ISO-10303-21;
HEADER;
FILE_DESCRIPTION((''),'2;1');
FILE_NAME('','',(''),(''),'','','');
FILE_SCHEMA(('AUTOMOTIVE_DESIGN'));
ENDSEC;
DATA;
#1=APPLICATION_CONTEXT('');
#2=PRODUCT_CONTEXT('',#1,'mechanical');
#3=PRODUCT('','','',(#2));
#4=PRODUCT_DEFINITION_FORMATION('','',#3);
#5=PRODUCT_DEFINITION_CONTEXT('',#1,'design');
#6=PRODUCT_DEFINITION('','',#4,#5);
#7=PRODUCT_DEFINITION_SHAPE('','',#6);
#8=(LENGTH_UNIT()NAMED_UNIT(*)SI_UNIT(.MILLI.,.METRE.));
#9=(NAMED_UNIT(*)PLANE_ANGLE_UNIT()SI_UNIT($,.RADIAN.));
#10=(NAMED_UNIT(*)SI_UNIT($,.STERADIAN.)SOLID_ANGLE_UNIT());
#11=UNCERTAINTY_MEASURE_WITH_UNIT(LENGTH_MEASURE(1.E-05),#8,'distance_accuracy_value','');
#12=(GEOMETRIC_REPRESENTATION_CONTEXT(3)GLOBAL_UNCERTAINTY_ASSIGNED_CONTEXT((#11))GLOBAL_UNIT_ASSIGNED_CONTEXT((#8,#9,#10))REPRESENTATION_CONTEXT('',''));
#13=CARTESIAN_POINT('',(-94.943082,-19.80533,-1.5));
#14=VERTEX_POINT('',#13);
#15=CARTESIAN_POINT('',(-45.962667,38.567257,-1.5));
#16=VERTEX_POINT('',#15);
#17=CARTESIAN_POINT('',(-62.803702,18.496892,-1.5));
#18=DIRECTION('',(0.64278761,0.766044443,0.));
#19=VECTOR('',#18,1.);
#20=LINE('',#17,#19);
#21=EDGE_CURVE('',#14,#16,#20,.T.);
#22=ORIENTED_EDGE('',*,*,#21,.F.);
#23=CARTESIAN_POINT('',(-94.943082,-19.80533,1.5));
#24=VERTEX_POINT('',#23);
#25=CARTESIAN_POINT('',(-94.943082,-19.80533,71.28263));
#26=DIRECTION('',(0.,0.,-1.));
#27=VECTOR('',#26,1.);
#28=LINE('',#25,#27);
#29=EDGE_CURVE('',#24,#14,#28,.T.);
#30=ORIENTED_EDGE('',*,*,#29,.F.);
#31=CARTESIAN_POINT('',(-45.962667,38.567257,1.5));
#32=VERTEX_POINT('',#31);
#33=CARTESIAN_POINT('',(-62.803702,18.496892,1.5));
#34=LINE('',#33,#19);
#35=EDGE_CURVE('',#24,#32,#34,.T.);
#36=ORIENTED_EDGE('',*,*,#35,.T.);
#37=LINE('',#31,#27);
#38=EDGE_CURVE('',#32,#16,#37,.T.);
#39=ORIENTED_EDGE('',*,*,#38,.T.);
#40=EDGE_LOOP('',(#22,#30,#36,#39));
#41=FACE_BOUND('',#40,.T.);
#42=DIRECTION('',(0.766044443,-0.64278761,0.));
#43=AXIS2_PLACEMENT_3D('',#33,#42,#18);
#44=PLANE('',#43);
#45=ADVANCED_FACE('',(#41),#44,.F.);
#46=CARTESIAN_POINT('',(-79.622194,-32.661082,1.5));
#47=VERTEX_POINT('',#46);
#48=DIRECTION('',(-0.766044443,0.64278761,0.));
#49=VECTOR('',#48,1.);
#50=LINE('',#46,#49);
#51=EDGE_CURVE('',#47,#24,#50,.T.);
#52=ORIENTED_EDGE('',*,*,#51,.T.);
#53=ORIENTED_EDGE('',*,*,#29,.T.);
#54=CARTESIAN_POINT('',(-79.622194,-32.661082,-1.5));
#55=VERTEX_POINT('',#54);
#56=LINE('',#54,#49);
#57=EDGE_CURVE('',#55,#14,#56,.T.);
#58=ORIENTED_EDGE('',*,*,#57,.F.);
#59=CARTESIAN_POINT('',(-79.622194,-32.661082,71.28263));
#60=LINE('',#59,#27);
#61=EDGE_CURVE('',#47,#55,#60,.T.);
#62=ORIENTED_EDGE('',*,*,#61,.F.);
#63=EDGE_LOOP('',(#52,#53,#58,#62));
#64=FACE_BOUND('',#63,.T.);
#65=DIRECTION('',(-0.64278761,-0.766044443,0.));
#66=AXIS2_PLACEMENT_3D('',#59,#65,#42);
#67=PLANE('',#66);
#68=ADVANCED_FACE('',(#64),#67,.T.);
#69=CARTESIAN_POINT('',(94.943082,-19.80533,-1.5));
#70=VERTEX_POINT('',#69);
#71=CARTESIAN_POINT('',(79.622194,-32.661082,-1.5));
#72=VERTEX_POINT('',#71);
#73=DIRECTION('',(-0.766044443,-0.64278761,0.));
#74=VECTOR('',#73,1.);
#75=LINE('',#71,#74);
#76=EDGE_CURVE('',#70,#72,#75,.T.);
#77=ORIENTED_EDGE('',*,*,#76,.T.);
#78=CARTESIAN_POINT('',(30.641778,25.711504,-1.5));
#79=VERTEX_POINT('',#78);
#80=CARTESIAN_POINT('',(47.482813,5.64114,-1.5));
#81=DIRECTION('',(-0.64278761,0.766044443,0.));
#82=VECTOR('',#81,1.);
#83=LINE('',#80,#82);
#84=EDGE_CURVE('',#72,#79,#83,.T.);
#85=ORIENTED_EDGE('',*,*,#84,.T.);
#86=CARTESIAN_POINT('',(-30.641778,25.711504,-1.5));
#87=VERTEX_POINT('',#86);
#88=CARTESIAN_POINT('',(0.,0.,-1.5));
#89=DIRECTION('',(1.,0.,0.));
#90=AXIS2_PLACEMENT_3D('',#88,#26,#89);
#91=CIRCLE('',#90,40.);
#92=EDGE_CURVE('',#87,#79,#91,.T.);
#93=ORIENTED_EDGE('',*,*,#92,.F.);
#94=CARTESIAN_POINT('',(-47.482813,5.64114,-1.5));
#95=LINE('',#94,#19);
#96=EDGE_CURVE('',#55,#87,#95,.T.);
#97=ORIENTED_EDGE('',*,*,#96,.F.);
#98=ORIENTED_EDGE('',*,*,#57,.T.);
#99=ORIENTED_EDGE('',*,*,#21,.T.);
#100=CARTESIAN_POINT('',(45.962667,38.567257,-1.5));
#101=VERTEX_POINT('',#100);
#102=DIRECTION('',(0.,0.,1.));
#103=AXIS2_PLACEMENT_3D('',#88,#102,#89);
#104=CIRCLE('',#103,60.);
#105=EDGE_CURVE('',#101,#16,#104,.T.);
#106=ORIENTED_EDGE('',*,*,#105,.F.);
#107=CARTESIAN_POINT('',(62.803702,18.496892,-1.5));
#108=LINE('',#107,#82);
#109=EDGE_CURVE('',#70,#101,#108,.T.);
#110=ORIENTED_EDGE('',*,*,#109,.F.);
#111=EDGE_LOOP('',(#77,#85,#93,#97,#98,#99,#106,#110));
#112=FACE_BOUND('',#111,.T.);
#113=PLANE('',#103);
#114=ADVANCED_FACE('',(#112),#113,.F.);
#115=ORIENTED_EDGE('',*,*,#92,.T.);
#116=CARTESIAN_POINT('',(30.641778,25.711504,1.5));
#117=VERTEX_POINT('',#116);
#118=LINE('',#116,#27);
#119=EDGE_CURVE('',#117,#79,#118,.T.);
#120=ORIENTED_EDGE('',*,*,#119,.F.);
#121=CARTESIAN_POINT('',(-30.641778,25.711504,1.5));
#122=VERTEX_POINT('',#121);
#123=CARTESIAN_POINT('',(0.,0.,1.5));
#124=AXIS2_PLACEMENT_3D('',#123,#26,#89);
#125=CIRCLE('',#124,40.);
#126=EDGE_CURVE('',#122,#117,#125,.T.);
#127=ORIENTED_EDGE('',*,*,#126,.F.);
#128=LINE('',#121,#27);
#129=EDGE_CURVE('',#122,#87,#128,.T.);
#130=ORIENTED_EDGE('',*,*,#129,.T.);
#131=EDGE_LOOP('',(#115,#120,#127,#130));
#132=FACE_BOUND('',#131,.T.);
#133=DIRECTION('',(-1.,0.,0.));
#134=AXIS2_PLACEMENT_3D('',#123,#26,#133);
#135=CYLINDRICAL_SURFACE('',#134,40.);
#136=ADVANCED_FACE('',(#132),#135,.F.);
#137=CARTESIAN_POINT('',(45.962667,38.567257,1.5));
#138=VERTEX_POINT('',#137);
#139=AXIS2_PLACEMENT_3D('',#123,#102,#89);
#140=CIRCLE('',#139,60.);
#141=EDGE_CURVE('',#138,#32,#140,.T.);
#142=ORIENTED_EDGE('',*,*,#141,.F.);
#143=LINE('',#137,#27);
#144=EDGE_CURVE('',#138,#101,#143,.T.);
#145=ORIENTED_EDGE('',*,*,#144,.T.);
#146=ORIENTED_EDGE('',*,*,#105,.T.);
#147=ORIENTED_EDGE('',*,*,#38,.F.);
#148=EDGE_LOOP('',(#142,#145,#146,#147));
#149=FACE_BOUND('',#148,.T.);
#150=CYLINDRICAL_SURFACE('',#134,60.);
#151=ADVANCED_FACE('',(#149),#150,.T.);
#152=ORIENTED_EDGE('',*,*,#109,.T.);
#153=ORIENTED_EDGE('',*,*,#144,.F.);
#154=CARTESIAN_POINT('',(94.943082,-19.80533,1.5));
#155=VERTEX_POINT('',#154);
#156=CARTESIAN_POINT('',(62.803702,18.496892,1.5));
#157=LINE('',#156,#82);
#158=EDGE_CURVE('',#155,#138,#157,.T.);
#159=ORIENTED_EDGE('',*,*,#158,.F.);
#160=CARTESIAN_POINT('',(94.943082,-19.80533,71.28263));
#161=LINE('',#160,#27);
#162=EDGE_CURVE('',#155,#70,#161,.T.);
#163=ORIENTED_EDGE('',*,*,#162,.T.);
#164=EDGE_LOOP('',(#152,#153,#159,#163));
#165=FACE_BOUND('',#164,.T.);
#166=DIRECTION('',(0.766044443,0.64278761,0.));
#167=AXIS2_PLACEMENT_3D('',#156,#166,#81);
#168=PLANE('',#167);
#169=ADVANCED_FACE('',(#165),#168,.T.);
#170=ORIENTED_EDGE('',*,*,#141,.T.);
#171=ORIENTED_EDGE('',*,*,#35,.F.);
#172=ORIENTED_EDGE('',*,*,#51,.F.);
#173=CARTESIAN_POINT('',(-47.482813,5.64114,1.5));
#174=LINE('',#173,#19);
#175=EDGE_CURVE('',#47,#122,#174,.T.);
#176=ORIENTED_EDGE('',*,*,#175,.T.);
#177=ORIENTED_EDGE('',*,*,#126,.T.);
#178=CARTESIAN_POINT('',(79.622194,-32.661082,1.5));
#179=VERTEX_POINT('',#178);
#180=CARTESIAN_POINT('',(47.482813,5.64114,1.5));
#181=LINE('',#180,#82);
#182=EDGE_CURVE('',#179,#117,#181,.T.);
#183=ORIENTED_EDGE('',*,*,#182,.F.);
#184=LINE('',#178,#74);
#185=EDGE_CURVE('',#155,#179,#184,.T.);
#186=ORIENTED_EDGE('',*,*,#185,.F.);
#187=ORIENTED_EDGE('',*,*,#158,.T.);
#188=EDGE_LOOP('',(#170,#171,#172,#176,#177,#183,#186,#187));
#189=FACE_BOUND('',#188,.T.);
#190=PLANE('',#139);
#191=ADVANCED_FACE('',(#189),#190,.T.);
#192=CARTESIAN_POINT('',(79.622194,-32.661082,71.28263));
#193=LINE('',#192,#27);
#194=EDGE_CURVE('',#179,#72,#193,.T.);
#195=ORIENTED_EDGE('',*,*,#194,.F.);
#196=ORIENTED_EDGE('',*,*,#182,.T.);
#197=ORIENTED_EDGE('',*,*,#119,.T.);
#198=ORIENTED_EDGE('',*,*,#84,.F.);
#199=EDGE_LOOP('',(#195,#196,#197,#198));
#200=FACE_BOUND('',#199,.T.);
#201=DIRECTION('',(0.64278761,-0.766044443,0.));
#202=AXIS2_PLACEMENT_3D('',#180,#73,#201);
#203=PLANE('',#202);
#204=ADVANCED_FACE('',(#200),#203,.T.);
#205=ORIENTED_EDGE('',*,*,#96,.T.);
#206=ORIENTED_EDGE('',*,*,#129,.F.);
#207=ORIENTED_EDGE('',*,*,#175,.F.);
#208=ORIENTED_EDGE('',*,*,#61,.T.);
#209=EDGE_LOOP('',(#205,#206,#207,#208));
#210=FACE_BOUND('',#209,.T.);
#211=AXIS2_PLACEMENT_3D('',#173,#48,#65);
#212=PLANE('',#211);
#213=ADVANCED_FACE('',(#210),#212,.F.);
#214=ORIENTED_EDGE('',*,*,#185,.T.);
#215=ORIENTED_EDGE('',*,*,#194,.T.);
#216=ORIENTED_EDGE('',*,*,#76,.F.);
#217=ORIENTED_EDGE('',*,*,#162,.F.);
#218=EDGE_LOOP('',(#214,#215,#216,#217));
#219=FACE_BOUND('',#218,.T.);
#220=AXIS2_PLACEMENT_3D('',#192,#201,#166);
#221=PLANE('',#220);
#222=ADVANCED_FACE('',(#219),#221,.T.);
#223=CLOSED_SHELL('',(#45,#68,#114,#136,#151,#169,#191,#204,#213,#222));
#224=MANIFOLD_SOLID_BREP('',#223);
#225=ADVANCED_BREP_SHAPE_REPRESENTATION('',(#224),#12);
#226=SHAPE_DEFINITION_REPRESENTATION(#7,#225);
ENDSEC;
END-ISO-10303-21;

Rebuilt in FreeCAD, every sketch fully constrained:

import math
import FreeCAD as App
import Part
import Sketcher
from FreeCAD import Vector
Q = App.Units.Quantity

doc = App.newDocument("Part")
body = doc.addObject("PartDesign::Body", "Body")

# Sketch on XY plane
sketch1 = doc.addObject("Sketcher::SketchObject", "Sketch")
body.addObject(sketch1)
sketch1.AttachmentSupport = (doc.XY_Plane, [""])
sketch1.MapMode = "FlatFace"
sketch1.addGeometry([
    Part.LineSegment(Vector(30.641778, 25.711504, 0), Vector(45.962667, 38.567257, 0)),
    Part.ArcOfCircle(Part.Circle(Vector(0, 0, 0), Vector(0, 0, 1), 60), math.radians(40), math.radians(140)),
    Part.LineSegment(Vector(-45.962667, 38.567257, 0), Vector(-30.641778, 25.711504, 0)),
    Part.ArcOfCircle(Part.Circle(Vector(0, 0, 0), Vector(0, 0, 1), 40), math.radians(40), math.radians(140)),
], False)
sketch1.addConstraint([
    Sketcher.Constraint("Coincident", 0, 2, 1, 1),
    Sketcher.Constraint("Coincident", 1, 2, 2, 1),
    Sketcher.Constraint("Coincident", 2, 2, 3, 2),
    Sketcher.Constraint("Coincident", 3, 1, 0, 1),
    Sketcher.Constraint("Coincident", 1, 3, -1, 1),
    Sketcher.Constraint("Coincident", 3, 3, -1, 1),
    Sketcher.Constraint("Horizontal", 0, 2, 1, 2),
    Sketcher.Constraint("Horizontal", 2, 2, 3, 1),
    Sketcher.Constraint("Radius", 1, 60.0),
    Sketcher.Constraint("Radius", 3, 40.0),
    Sketcher.Constraint("Angle", 0, Q("40 deg")),
    Sketcher.Constraint("DistanceX", -1, 1, 0, 2, 45.962667),
])
pad1 = doc.addObject("PartDesign::Pad", "Pad")
body.addObject(pad1)
pad1.Profile = sketch1
pad1.Length = 3
pad1.Midplane = True

# Sketch on an angled plane
sketch2 = doc.addObject("Sketcher::SketchObject", "Sketch001")
body.addObject(sketch2)
sketch2.Placement = App.Placement(Vector(0, 0, 0), App.Rotation(Vector(0, 0, 1), Vector(-0.766044443, 0.64278761, 0), Vector(-0.64278761, -0.766044443, 0), "ZXY"))
sketch2.addGeometry([
    Part.LineSegment(Vector(-1.5, 60, 0), Vector(-1.5, 40, 0)),
    Part.LineSegment(Vector(-1.5, 40, 0), Vector(1.5, 40, 0)),
    Part.LineSegment(Vector(1.5, 40, 0), Vector(1.5, 60, 0)),
    Part.LineSegment(Vector(1.5, 60, 0), Vector(-1.5, 60, 0)),
], False)
sketch2.addConstraint([
    Sketcher.Constraint("Coincident", 0, 2, 1, 1),
    Sketcher.Constraint("Coincident", 1, 2, 2, 1),
    Sketcher.Constraint("Coincident", 2, 2, 3, 1),
    Sketcher.Constraint("Coincident", 3, 2, 0, 1),
    Sketcher.Constraint("Vertical", 0),
    Sketcher.Constraint("Horizontal", 1),
    Sketcher.Constraint("Vertical", 2),
    Sketcher.Constraint("Horizontal", 3),
    Sketcher.Constraint("DistanceX", 1, 1, 1, 2, 3.0),
    Sketcher.Constraint("DistanceY", 0, 2, 0, 1, 20.0),
    Sketcher.Constraint("DistanceY", -1, 1, 0, 2, 40.0),
    Sketcher.Constraint("DistanceX", 0, 2, -1, 1, 1.5),
])
pad2 = doc.addObject("PartDesign::Pad", "Pad001")
body.addObject(pad2)
pad2.Profile = sketch2
pad2.Length = 26.2
doc.recompute()

mirrored = doc.addObject("PartDesign::Mirrored", "Mirrored")
body.addObject(mirrored)
mirrored.Originals = [pad2]
mirrored.MirrorPlane = (doc.YZ_Plane, [""])
body.Tip = mirrored

# Sketch on XY plane
sketch3 = doc.addObject("Sketcher::SketchObject", "Sketch002")
body.addObject(sketch3)
sketch3.AttachmentSupport = (doc.XY_Plane, [""])
sketch3.MapMode = "FlatFace"
sketch3.AttachmentOffset = App.Placement(Vector(0, 0, -1.5), App.Rotation())
sketch3.addGeometry([
    Part.LineSegment(Vector(-62.803702, 18.496892, 0), Vector(-47.482813, 5.64114, 0)),  # 0
    Part.LineSegment(Vector(-47.482813, 5.64114, 0), Vector(-79.622194, -32.661082, 0)),  # 1
    Part.LineSegment(Vector(-79.622194, -32.661082, 0), Vector(-94.943082, -19.80533, 0)),  # 2
    Part.LineSegment(Vector(-94.943082, -19.80533, 0), Vector(-62.803702, 18.496892, 0)),  # 3
    Part.LineSegment(Vector(94.943082, -19.80533, 0), Vector(79.622194, -32.661082, 0)),  # 4
    Part.LineSegment(Vector(79.622194, -32.661082, 0), Vector(47.482813, 5.64114, 0)),  # 5
    Part.LineSegment(Vector(47.482813, 5.64114, 0), Vector(62.803702, 18.496892, 0)),  # 6
    Part.LineSegment(Vector(62.803702, 18.496892, 0), Vector(94.943082, -19.80533, 0)),  # 7
], False)
sketch3.addConstraint([
    Sketcher.Constraint("Coincident", 0, 2, 1, 1),
    Sketcher.Constraint("Coincident", 1, 2, 2, 1),
    Sketcher.Constraint("Coincident", 2, 2, 3, 1),
    Sketcher.Constraint("Coincident", 3, 2, 0, 1),
    Sketcher.Constraint("Coincident", 4, 2, 5, 1),
    Sketcher.Constraint("Coincident", 5, 2, 6, 1),
    Sketcher.Constraint("Coincident", 6, 2, 7, 1),
    Sketcher.Constraint("Coincident", 7, 2, 4, 1),
    Sketcher.Constraint("Symmetric", 1, 2, 4, 2, -2),
    Sketcher.Constraint("Symmetric", 0, 2, 5, 2, -2),
    Sketcher.Constraint("Symmetric", 3, 2, 6, 2, -2),
    Sketcher.Constraint("Symmetric", 2, 2, 7, 2, -2),
    Sketcher.Constraint("Perpendicular", 0, 1),
    Sketcher.Constraint("Perpendicular", 1, 2),
    Sketcher.Constraint("Perpendicular", 2, 3),
    Sketcher.Constraint("Angle", 0, Q("-40 deg")),
    Sketcher.Constraint("Distance", 0, 20.0),
    Sketcher.Constraint("Distance", 1, 50.0),
    Sketcher.Constraint("DistanceX", 3, 2, -1, 1, 62.803702),
    Sketcher.Constraint("DistanceY", -1, 1, 0, 2, 5.64114),
])
pad3 = doc.addObject("PartDesign::Pad", "Pad002")
body.addObject(pad3)
pad3.Profile = sketch3
pad3.Length = 3

doc.recompute()
